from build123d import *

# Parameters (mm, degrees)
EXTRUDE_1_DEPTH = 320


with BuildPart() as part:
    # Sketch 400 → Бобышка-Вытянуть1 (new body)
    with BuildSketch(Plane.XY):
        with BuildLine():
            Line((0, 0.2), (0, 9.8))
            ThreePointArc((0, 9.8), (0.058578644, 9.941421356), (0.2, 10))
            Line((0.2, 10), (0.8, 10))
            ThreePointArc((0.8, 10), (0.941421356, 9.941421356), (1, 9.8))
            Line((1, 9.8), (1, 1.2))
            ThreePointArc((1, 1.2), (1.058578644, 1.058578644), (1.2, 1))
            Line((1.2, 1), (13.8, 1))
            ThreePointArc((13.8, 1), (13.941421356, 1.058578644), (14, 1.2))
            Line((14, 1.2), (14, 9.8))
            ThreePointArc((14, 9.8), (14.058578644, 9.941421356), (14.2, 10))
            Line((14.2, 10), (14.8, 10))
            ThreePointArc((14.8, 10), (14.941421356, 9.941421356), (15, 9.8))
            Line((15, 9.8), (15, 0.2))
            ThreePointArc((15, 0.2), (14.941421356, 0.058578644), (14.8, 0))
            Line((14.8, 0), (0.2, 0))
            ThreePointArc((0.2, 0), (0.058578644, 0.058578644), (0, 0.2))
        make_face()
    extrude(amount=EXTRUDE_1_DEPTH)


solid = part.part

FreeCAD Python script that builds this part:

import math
import FreeCAD as App
import Part
import Sketcher
Q = App.Units.Quantity

doc = App.newDocument("Part")
params = doc.addObject("Spreadsheet::Sheet", "Params")
for row, (alias, value) in enumerate([
    ("sketch1_radius", "0.2 mm"),
    ("sketch1_width", "14.6 mm"),
    ("sketch1_width2", "0.6 mm"),
    ("sketch1_height", "9.6 mm"),
    ("sketch1_height2", "8.6 mm"),
    ("pad1_length", "320 mm"),
], start=1):
    params.set(f"A{row}", alias)
    params.set(f"B{row}", "=" + value)
    params.setAlias(f"B{row}", alias)

body = doc.addObject("PartDesign::Body", "Body")

# Sketch on XY plane
sketch1 = body.newObject("Sketcher::SketchObject", "Sketch")
sketch1.AttachmentSupport = (doc.getObject("XY_Plane"), [""])
sketch1.MapMode = "FlatFace"
sketch1.addGeometry([
    Part.LineSegment(App.Vector(0, 9.8, 0), App.Vector(0, 0.2, 0)),  # 0
    Part.ArcOfCircle(Part.Circle(App.Vector(0.2, 0.2, 0), App.Vector(0, 0, 1), 0.2), math.radians(-180), math.radians(-90)),  # 1
    Part.LineSegment(App.Vector(0.2, 0, 0), App.Vector(14.8, 0, 0)),  # 2
    Part.ArcOfCircle(Part.Circle(App.Vector(14.8, 0.2, 0), App.Vector(0, 0, 1), 0.2), math.radians(-90), math.radians(0)),  # 3
    Part.LineSegment(App.Vector(15, 0.2, 0), App.Vector(15, 9.8, 0)),  # 4
    Part.ArcOfCircle(Part.Circle(App.Vector(14.8, 9.8, 0), App.Vector(0, 0, 1), 0.2), math.radians(0), math.radians(90)),  # 5
    Part.LineSegment(App.Vector(14.8, 10, 0), App.Vector(14.2, 10, 0)),  # 6
    Part.ArcOfCircle(Part.Circle(App.Vector(14.2, 9.8, 0), App.Vector(0, 0, 1), 0.2), math.radians(90), math.radians(180)),  # 7
    Part.LineSegment(App.Vector(14, 9.8, 0), App.Vector(14, 1.2, 0)),  # 8
    Part.ArcOfCircle(Part.Circle(App.Vector(13.8, 1.2, 0), App.Vector(0, 0, 1), 0.2), math.radians(-90), math.radians(0)),  # 9
    Part.LineSegment(App.Vector(13.8, 1, 0), App.Vector(1.2, 1, 0)),  # 10
    Part.ArcOfCircle(Part.Circle(App.Vector(1.2, 1.2, 0), App.Vector(0, 0, 1), 0.2), math.radians(-180), math.radians(-90)),  # 11
    Part.LineSegment(App.Vector(1, 1.2, 0), App.Vector(1, 9.8, 0)),  # 12
    Part.ArcOfCircle(Part.Circle(App.Vector(0.8, 9.8, 0), App.Vector(0, 0, 1), 0.2), math.radians(0), math.radians(90)),  # 13
    Part.LineSegment(App.Vector(0.8, 10, 0), App.Vector(0.2, 10, 0)),  # 14
    Part.ArcOfCircle(Part.Circle(App.Vector(0.2, 9.8, 0), App.Vector(0, 0, 1), 0.2), math.radians(90), math.radians(180)),  # 15
], False)
sketch1.addConstraint([
    Sketcher.Constraint("Tangent", 0, 2, 1, 1),
    Sketcher.Constraint("Tangent", 1, 2, 2, 1),
    Sketcher.Constraint("Tangent", 2, 2, 3, 1),
    Sketcher.Constraint("Tangent", 3, 2, 4, 1),
    Sketcher.Constraint("Tangent", 4, 2, 5, 1),
    Sketcher.Constraint("Tangent", 5, 2, 6, 1),
    Sketcher.Constraint("Tangent", 6, 2, 7, 1),
    Sketcher.Constraint("Tangent", 7, 2, 8, 1),
    Sketcher.Constraint("Tangent", 8, 2, 9, 2),
    Sketcher.Constraint("Tangent", 9, 1, 10, 1),
    Sketcher.Constraint("Tangent", 10, 2, 11, 2),
    Sketcher.Constraint("Tangent", 11, 1, 12, 1),
    Sketcher.Constraint("Tangent", 12, 2, 13, 1),
    Sketcher.Constraint("Tangent", 13, 2, 14, 1),
    Sketcher.Constraint("Tangent", 14, 2, 15, 1),
    Sketcher.Constraint("Tangent", 15, 2, 0, 1),
    Sketcher.Constraint("Vertical", 0),
    Sketcher.Constraint("Horizontal", 2),
    Sketcher.Constraint("Vertical", 4),
    Sketcher.Constraint("Horizontal", 6),
    Sketcher.Constraint("Vertical", 8),
    Sketcher.Constraint("Horizontal", 10),
    Sketcher.Constraint("Vertical", 12),
    Sketcher.Constraint("Horizontal", 14),
    Sketcher.Constraint("Equal", 1, 3),
    Sketcher.Constraint("Equal", 3, 5),
    Sketcher.Constraint("Equal", 5, 7),
    Sketcher.Constraint("Equal", 7, 9),
    Sketcher.Constraint("Equal", 9, 11),
    Sketcher.Constraint("Equal", 11, 13),
    Sketcher.Constraint("Equal", 13, 15),
    Sketcher.Constraint("PointOnObject", 0, 2, -2),
    Sketcher.Constraint("PointOnObject", 1, 2, -1),
    Sketcher.Constraint("Horizontal", 7, 3, 13, 3),
    Sketcher.Constraint("Equal", 6, 14),
    Sketcher.Constraint("Radius", 1, Q("0.2 mm")),
    Sketcher.Constraint("DistanceX", 2, 1, 2, 2, Q("14.6 mm")),
    Sketcher.Constraint("DistanceX", 6, 2, 6, 1, Q("0.6 mm")),
    Sketcher.Constraint("DistanceY", 0, 2, 0, 1, Q("9.6 mm")),
    Sketcher.Constraint("DistanceY", 8, 2, 8, 1, Q("8.6 mm")),
])
sketch1.setExpression("Constraints[35]", "Params.sketch1_radius")
sketch1.setExpression("Constraints[36]", "Params.sketch1_width")
sketch1.setExpression("Constraints[37]", "Params.sketch1_width2")
sketch1.setExpression("Constraints[38]", "Params.sketch1_height")
sketch1.setExpression("Constraints[39]", "Params.sketch1_height2")
pad1 = body.newObject("PartDesign::Pad", "Pad")
pad1.Profile = sketch1
pad1.setExpression("Length", "Params.pad1_length")

doc.recompute()
